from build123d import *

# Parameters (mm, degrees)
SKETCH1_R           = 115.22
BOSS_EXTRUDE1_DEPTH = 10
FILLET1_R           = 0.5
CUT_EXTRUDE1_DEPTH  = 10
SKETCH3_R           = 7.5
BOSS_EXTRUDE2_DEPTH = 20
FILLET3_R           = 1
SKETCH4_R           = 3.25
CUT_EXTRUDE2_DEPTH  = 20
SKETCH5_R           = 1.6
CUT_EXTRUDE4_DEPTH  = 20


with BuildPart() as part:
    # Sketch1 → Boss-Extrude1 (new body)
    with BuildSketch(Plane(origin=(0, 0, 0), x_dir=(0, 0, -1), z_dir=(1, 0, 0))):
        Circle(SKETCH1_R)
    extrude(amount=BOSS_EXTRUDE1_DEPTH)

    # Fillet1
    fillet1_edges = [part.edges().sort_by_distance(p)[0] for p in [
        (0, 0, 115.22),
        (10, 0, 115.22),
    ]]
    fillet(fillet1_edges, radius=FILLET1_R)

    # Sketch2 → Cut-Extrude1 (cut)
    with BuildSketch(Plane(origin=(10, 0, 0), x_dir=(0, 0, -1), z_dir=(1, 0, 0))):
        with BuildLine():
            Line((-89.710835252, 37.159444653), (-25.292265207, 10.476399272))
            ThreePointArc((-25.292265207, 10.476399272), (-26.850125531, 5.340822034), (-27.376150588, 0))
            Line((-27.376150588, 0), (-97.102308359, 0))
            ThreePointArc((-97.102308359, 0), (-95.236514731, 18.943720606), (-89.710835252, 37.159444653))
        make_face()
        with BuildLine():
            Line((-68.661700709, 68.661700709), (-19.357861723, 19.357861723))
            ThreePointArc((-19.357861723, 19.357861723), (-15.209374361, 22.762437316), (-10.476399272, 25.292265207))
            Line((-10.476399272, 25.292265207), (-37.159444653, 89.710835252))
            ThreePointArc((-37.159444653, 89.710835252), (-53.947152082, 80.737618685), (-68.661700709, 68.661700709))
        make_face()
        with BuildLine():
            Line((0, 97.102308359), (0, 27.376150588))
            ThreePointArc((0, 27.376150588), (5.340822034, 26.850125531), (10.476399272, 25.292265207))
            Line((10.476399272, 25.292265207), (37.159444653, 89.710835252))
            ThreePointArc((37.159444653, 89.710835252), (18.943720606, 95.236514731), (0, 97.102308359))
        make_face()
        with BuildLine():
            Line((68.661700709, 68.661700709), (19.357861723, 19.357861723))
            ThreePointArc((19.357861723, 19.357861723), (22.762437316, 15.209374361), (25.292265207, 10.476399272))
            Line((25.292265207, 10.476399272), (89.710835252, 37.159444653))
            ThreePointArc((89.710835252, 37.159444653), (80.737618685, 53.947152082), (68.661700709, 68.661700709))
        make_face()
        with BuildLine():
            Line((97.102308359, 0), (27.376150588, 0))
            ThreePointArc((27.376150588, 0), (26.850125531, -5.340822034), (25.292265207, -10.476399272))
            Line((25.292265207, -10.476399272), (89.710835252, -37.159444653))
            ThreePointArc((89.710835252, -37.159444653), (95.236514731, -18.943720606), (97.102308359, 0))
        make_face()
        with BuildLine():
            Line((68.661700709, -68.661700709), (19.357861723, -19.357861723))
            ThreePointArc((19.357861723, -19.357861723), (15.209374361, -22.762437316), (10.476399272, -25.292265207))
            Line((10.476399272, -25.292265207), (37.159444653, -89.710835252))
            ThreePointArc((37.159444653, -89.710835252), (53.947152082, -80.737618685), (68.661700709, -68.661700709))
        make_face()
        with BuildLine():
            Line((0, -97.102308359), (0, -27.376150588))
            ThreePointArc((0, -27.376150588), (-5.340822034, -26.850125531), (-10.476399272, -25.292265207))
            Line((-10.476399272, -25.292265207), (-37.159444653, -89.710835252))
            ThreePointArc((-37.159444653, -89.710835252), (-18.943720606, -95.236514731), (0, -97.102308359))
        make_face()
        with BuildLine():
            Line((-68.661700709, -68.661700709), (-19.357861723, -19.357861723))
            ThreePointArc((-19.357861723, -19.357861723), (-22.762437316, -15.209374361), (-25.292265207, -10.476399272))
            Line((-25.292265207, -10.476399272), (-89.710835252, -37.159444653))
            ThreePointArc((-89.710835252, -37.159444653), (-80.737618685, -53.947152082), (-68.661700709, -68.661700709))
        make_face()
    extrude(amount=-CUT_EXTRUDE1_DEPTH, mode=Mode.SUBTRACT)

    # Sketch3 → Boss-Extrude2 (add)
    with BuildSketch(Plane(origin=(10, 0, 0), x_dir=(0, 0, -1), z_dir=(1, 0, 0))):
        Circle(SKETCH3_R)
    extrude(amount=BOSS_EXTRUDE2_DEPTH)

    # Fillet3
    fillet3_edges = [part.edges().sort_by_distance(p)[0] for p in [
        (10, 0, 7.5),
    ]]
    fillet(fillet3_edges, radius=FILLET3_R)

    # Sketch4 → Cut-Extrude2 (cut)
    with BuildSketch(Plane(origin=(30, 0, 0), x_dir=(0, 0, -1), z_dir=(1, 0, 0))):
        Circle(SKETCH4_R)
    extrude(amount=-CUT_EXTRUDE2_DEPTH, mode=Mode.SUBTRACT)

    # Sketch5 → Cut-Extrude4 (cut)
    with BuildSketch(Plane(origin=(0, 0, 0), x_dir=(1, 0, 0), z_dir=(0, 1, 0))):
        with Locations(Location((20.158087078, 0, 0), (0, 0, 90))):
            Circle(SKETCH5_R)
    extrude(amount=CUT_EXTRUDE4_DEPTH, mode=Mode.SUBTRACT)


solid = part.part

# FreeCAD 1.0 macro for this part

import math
import FreeCAD as App
import Part
import Sketcher

V = App.Vector
Q = App.Units.Quantity


def edges_at(feature, points):
    """Names of the edges that pass closest to the given points."""
    edges = feature.Shape.Edges
    near = lambda p: min(range(len(edges)), key=lambda i: edges[i].distToShape(Part.Vertex(*p))[0])
    return sorted({f"Edge{near(p) + 1}" for p in points})

doc = App.newDocument("Part")
params = doc.addObject("Spreadsheet::Sheet", "Params")
for row, (alias, value) in enumerate([
    ("sketch1_diameter", "230.44 mm"),
    ("pad1_length", "10 mm"),
    ("fillet_radius", "0.5 mm"),
    ("pocket1_length", "10 mm"),
    ("sketch3_diameter", "15 mm"),
    ("pad2_length", "20 mm"),
    ("fillet2_radius", "1 mm"),
    ("sketch4_diameter", "6.5 mm"),
    ("pocket2_length", "20 mm"),
    ("sketch5_diameter", "3.2 mm"),
    ("pocket3_length", "20 mm"),
], start=1):
    params.set(f"A{row}", alias)
    params.set(f"B{row}", "=" + value)
    params.setAlias(f"B{row}", alias)

body = doc.addObject("PartDesign::Body", "Body")

sketch1 = body.newObject("Sketcher::SketchObject", "Sketch")
sketch1.AttachmentSupport = (doc.getObject("YZ_Plane"), [""])
sketch1.MapMode = "FlatFace"
sketch1.addGeometry(Part.Circle(V(0, 0, 0), V(0, 0, 1), 115), False)
sketch1.addConstraint(Sketcher.Constraint("Coincident", 0, 3, -1, 1))
sketch1.addConstraint(Sketcher.Constraint("Diameter", 0, 230.44))
sketch1.setExpression("Constraints[1]", "Params.sketch1_diameter")
pad1 = body.newObject("PartDesign::Pad", "Pad")
pad1.Profile = sketch1
pad1.setExpression("Length", "Params.pad1_length")
doc.recompute()

fillet = body.newObject("PartDesign::Fillet", "Fillet")
fillet.Base = (pad1, edges_at(pad1, [(0, 0, 115.22), (10, 0, 115.22)]))
fillet.setExpression("Radius", "Params.fillet_radius")

sketch2 = body.newObject("Sketcher::SketchObject", "Sketch001")
sketch2.AttachmentSupport = (doc.getObject("YZ_Plane"), [""])
sketch2.MapMode = "FlatFace"
sketch2.AttachmentOffset = App.Placement(V(0, 0, 10), App.Rotation())
sketch2.addGeometry(Part.LineSegment(V(10, 25, 0), V(37, 90, 0)), False)
sketch2.addGeometry(Part.ArcOfCircle(Part.Circle(V(0, 0, 0), V(0, 0, 1), 97), math.radians(68), math.radians(90)), False)
sketch2.addGeometry(Part.LineSegment(V(0, 97, 0), V(0, 27, 0)), False)
sketch2.addGeometry(Part.ArcOfCircle(Part.Circle(V(0, 0, 0), V(0, 0, 1), 27), math.radians(67), math.radians(90)), False)
sketch2.addGeometry(Part.LineSegment(V(69, 69, 0), V(19, 19, 0)), False)
sketch2.addGeometry(Part.ArcOfCircle(Part.Circle(V(0, 0, 0), V(0, 0, 1), 27), math.radians(22), math.radians(45)), False)
sketch2.addGeometry(Part.LineSegment(V(25, 10, 0), V(90, 37, 0)), False)
sketch2.addGeometry(Part.ArcOfCircle(Part.Circle(V(0, 0, 0), V(0, 0, 1), 97), math.radians(22), math.radians(45)), False)
sketch2.addGeometry(Part.LineSegment(V(97, 0, 0), V(27, 0, 0)), False)
sketch2.addGeometry(Part.ArcOfCircle(Part.Circle(V(0, 0, 0), V(0, 0, 1), 27), math.radians(-23), math.radians(0)), False)
sketch2.addGeometry(Part.LineSegment(V(25, -10, 0), V(90, -37, 0)), False)
sketch2.addGeometry(Part.ArcOfCircle(Part.Circle(V(0, 0, 0), V(0, 0, 1), 97), math.radians(-22), math.radians(0)), False)
sketch2.addGeometry(Part.LineSegment(V(69, -69, 0), V(19, -19, 0)), False)
sketch2.addGeometry(Part.ArcOfCircle(Part.Circle(V(0, 0, 0), V(0, 0, 1), 27), math.radians(-68), math.radians(-45)), False)
sketch2.addGeometry(Part.LineSegment(V(10, -25, 0), V(37, -90, 0)), False)
sketch2.addGeometry(Part.ArcOfCircle(Part.Circle(V(0, 0, 0), V(0, 0, 1), 97), math.radians(-68), math.radians(-45)), False)
sketch2.addGeometry(Part.LineSegment(V(0, -97, 0), V(0, -27, 0)), False)
sketch2.addGeometry(Part.ArcOfCircle(Part.Circle(V(0, 0, 0), V(0, 0, 1), 27), math.radians(-113), math.radians(-90)), False)
sketch2.addGeometry(Part.LineSegment(V(-10, -25, 0), V(-37, -90, 0)), False)
sketch2.addGeometry(Part.ArcOfCircle(Part.Circle(V(0, 0, 0), V(0, 0, 1), 97), math.radians(-112), math.radians(-90)), False)
sketch2.addGeometry(Part.LineSegment(V(-69, -69, 0), V(-19, -19, 0)), False)
sketch2.addGeometry(Part.ArcOfCircle(Part.Circle(V(0, 0, 0), V(0, 0, 1), 27), math.radians(-158), math.radians(-135)), False)
sketch2.addGeometry(Part.LineSegment(V(-25, -10, 0), V(-90, -37, 0)), False)
sketch2.addGeometry(Part.ArcOfCircle(Part.Circle(V(0, 0, 0), V(0, 0, 1), 97), math.radians(-158), math.radians(-135)), False)
sketch2.addGeometry(Part.LineSegment(V(-97, 0, 0), V(-27, 0, 0)), False)
sketch2.addGeometry(Part.ArcOfCircle(Part.Circle(V(0, 0, 0), V(0, 0, 1), 27), math.radians(157), math.radians(180)), False)
sketch2.addGeometry(Part.LineSegment(V(-25, 10, 0), V(-90, 37, 0)), False)
sketch2.addGeometry(Part.ArcOfCircle(Part.Circle(V(0, 0, 0), V(0, 0, 1), 97), math.radians(158), math.radians(180)), False)
sketch2.addGeometry(Part.LineSegment(V(-69, 69, 0), V(-19, 19, 0)), False)
sketch2.addGeometry(Part.ArcOfCircle(Part.Circle(V(0, 0, 0), V(0, 0, 1), 27), math.radians(112), math.radians(135)), False)
sketch2.addGeometry(Part.LineSegment(V(-10, 25, 0), V(-37, 90, 0)), False)
sketch2.addGeometry(Part.ArcOfCircle(Part.Circle(V(0, 0, 0), V(0, 0, 1), 97), math.radians(112), math.radians(135)), False)
sketch2.addConstraint(Sketcher.Constraint("Coincident", 0, 2, 1, 1))
sketch2.addConstraint(Sketcher.Constraint("Coincident", 1, 2, 2, 1))
sketch2.addConstraint(Sketcher.Constraint("Coincident", 2, 2, 3, 2))
sketch2.addConstraint(Sketcher.Constraint("Coincident", 3, 1, 0, 1))
sketch2.addConstraint(Sketcher.Constraint("Coincident", 4, 2, 5, 2))
sketch2.addConstraint(Sketcher.Constraint("Coincident", 5, 1, 6, 1))
sketch2.addConstraint(Sketcher.Constraint("Coincident", 6, 2, 7, 1))
sketch2.addConstraint(Sketcher.Constraint("Coincident", 7, 2, 4, 1))
sketch2.addConstraint(Sketcher.Constraint("Coincident", 8, 2, 9, 2))
sketch2.addConstraint(Sketcher.Constraint("Coincident", 9, 1, 10, 1))
sketch2.addConstraint(Sketcher.Constraint("Coincident", 10, 2, 11, 1))
sketch2.addConstraint(Sketcher.Constraint("Coincident", 11, 2, 8, 1))
sketch2.addConstraint(Sketcher.Constraint("Coincident", 12, 2, 13, 2))
sketch2.addConstraint(Sketcher.Constraint("Coincident", 13, 1, 14, 1))
sketch2.addConstraint(Sketcher.Constraint("Coincident", 14, 2, 15, 1))
sketch2.addConstraint(Sketcher.Constraint("Coincident", 15, 2, 12, 1))
sketch2.addConstraint(Sketcher.Constraint("Coincident", 16, 2, 17, 2))
sketch2.addConstraint(Sketcher.Constraint("Coincident", 17, 1, 18, 1))
sketch2.addConstraint(Sketcher.Constraint("Coincident", 18, 2, 19, 1))
sketch2.addConstraint(Sketcher.Constraint("Coincident", 19, 2, 16, 1))
sketch2.addConstraint(Sketcher.Constraint("Coincident", 20, 2, 21, 2))
sketch2.addConstraint(Sketcher.Constraint("Coincident", 21, 1, 22, 1))
sketch2.addConstraint(Sketcher.Constraint("Coincident", 22, 2, 23, 1))
sketch2.addConstraint(Sketcher.Constraint("Coincident", 23, 2, 20, 1))
sketch2.addConstraint(Sketcher.Constraint("Coincident", 24, 2, 25, 2))
sketch2.addConstraint(Sketcher.Constraint("Coincident", 25, 1, 26, 1))
sketch2.addConstraint(Sketcher.Constraint("Coincident", 26, 2, 27, 1))
sketch2.addConstraint(Sketcher.Constraint("Coincident", 27, 2, 24, 1))
sketch2.addConstraint(Sketcher.Constraint("Coincident", 28, 2, 29, 2))
sketch2.addConstraint(Sketcher.Constraint("Coincident", 29, 1, 30, 1))
sketch2.addConstraint(Sketcher.Constraint("Coincident", 30, 2, 31, 1))
sketch2.addConstraint(Sketcher.Constraint("Coincident", 31, 2, 28, 1))
sketch2.addConstraint(Sketcher.Constraint("Vertical", 2))
sketch2.addConstraint(Sketcher.Constraint("Horizontal", 8))
sketch2.addConstraint(Sketcher.Constraint("Vertical", 16))
sketch2.addConstraint(Sketcher.Constraint("Horizontal", 24))
sketch2.addConstraint(Sketcher.Constraint("Coincident", 1, 3, -1, 1))
sketch2.addConstraint(Sketcher.Constraint("Coincident", 3, 3, -1, 1))
sketch2.addConstraint(Sketcher.Constraint("Coincident", 5, 3, -1, 1))
sketch2.addConstraint(Sketcher.Constraint("Coincident", 7, 3, -1, 1))
sketch2.addConstraint(Sketcher.Constraint("Coincident", 9, 3, -1, 1))
sketch2.addConstraint(Sketcher.Constraint("Coincident", 11, 3, -1, 1))
sketch2.addConstraint(Sketcher.Constraint("Coincident", 13, 3, -1, 1))
sketch2.addConstraint(Sketcher.Constraint("Coincident", 15, 3, -1, 1))
sketch2.addConstraint(Sketcher.Constraint("Coincident", 17, 3, -1, 1))
sketch2.addConstraint(Sketcher.Constraint("Coincident", 19, 3, -1, 1))
sketch2.addConstraint(Sketcher.Constraint("Coincident", 21, 3, -1, 1))
sketch2.addConstraint(Sketcher.Constraint("Coincident", 23, 3, -1, 1))
sketch2.addConstraint(Sketcher.Constraint("Coincident", 25, 3, -1, 1))
sketch2.addConstraint(Sketcher.Constraint("Coincident", 27, 3, -1, 1))
sketch2.addConstraint(Sketcher.Constraint("Coincident", 29, 3, -1, 1))
sketch2.addConstraint(Sketcher.Constraint("Coincident", 31, 3, -1, 1))
sketch2.addConstraint(Sketcher.Constraint("Equal", 3, 5))
sketch2.addConstraint(Sketcher.Constraint("Equal", 1, 7))
sketch2.addConstraint(Sketcher.Constraint("Equal", 5, 9))
sketch2.addConstraint(Sketcher.Constraint("Equal", 7, 11))
sketch2.addConstraint(Sketcher.Constraint("Equal", 9, 13))
sketch2.addConstraint(Sketcher.Constraint("Equal", 11, 15))
sketch2.addConstraint(Sketcher.Constraint("Equal", 13, 17))
sketch2.addConstraint(Sketcher.Constraint("Equal", 15, 19))
sketch2.addConstraint(Sketcher.Constraint("Equal", 17, 21))
sketch2.addConstraint(Sketcher.Constraint("Equal", 19, 23))
sketch2.addConstraint(Sketcher.Constraint("Equal", 21, 25))
sketch2.addConstraint(Sketcher.Constraint("Equal", 23, 27))
sketch2.addConstraint(Sketcher.Constraint("Equal", 25, 29))
sketch2.addConstraint(Sketcher.Constraint("Equal", 27, 31))
sketch2.addConstraint(Sketcher.Constraint("PointOnObject", 1, 2, -2))
sketch2.addConstraint(Sketcher.Constraint("PointOnObject", 8, 2, -1))
sketch2.addConstraint(Sketcher.Constraint("PointOnObject", 16, 2, -2))
sketch2.addConstraint(Sketcher.Constraint("PointOnObject", 24, 2, -1))
sketch2.addConstraint(Sketcher.Constraint("Perpendicular", 0, 10))
sketch2.addConstraint(Sketcher.Constraint("Perpendicular", 4, 12))
sketch2.addConstraint(Sketcher.Constraint("Perpendicular", 6, 14))
sketch2.addConstraint(Sketcher.Constraint("Perpendicular", 10, 18))
sketch2.addConstraint(Sketcher.Constraint("Perpendicular", 12, 20))
sketch2.addConstraint(Sketcher.Constraint("Perpendicular", 14, 22))
sketch2.addConstraint(Sketcher.Constraint("Perpendicular", 18, 26))
sketch2.addConstraint(Sketcher.Constraint("Perpendicular", 20, 28))
sketch2.addConstraint(Sketcher.Constraint("Perpendicular", 22, 30))
sketch2.addConstraint(Sketcher.Constraint("Horizontal", 13, 1, 17, 1))
sketch2.addConstraint(Sketcher.Constraint("Horizontal", 14, 2, 18, 2))
sketch2.addConstraint(Sketcher.Constraint("Horizontal", 12, 2, 20, 2))
sketch2.addConstraint(Sketcher.Constraint("Horizontal", 9, 1, 21, 1))
sketch2.addConstraint(Sketcher.Constraint("Horizontal", 15, 2, 23, 2))
sketch2.addConstraint(Sketcher.Constraint("Horizontal", 5, 1, 25, 1))
sketch2.addConstraint(Sketcher.Constraint("Horizontal", 4, 2, 28, 2))
sketch2.addConstraint(Sketcher.Constraint("Horizontal", 3, 1, 29, 1))
sketch2.addConstraint(Sketcher.Constraint("Vertical", 5, 1, 9, 1))
sketch2.addConstraint(Sketcher.Constraint("Vertical", 4, 2, 12, 2))
sketch2.addConstraint(Sketcher.Constraint("Vertical", 3, 1, 13, 1))
sketch2.addConstraint(Sketcher.Constraint("Angle", 0, Q("67.5 deg")))
sketch2.addConstraint(Sketcher.Constraint("Radius", 1, 97.102308))
sketch2.addConstraint(Sketcher.Constraint("Radius", 3, 27.376151))
sketch2.addConstraint(Sketcher.Constraint("DistanceX", -1, 1, 3, 1, 10.476399))
sketch2.addConstraint(Sketcher.Constraint("DistanceY", -1, 1, 5, 1, 10.476399))
sketch2.addConstraint(Sketcher.Constraint("DistanceX", -1, 1, 7, 2, 68.661701))
pocket1 = body.newObject("PartDesign::Pocket", "Pocket")
pocket1.Profile = sketch2
pocket1.setExpression("Length", "Params.pocket1_length")

sketch3 = body.newObject("Sketcher::SketchObject", "Sketch002")
sketch3.AttachmentSupport = (doc.getObject("YZ_Plane"), [""])
sketch3.MapMode = "FlatFace"
sketch3.AttachmentOffset = App.Placement(V(0, 0, 10), App.Rotation())
sketch3.addGeometry(Part.Circle(V(0, 0, 0), V(0, 0, 1), 8), False)
sketch3.addConstraint(Sketcher.Constraint("Coincident", 0, 3, -1, 1))
sketch3.addConstraint(Sketcher.Constraint("Diameter", 0, 15.0))
sketch3.setExpression("Constraints[1]", "Params.sketch3_diameter")
pad2 = body.newObject("PartDesign::Pad", "Pad001")
pad2.Profile = sketch3
pad2.setExpression("Length", "Params.pad2_length")
doc.recompute()

fillet2 = body.newObject("PartDesign::Fillet", "Fillet001")
fillet2.Base = (pad2, edges_at(pad2, [(10, 0, 7.5)]))
fillet2.setExpression("Radius", "Params.fillet2_radius")

sketch4 = body.newObject("Sketcher::SketchObject", "Sketch003")
sketch4.AttachmentSupport = (doc.getObject("YZ_Plane"), [""])
sketch4.MapMode = "FlatFace"
sketch4.AttachmentOffset = App.Placement(V(0, 0, 30), App.Rotation())
sketch4.addGeometry(Part.Circle(V(0, 0, 0), V(0, 0, 1), 3.2), False)
sketch4.addConstraint(Sketcher.Constraint("Coincident", 0, 3, -1, 1))
sketch4.addConstraint(Sketcher.Constraint("Diameter", 0, 6.5))
sketch4.setExpression("Constraints[1]", "Params.sketch4_diameter")
pocket2 = body.newObject("PartDesign::Pocket", "Pocket001")
pocket2.Profile = sketch4
pocket2.setExpression("Length", "Params.pocket2_length")

sketch5 = body.newObject("Sketcher::SketchObject", "Sketch004")
sketch5.AttachmentSupport = (doc.getObject("XZ_Plane"), [""])
sketch5.MapMode = "FlatFace"
sketch5.addGeometry(Part.Circle(V(20.2, 0, 0), V(0, 0, 1), 1.6), False)
sketch5.addConstraint(Sketcher.Constraint("PointOnObject", 0, 3, -1))
sketch5.addConstraint(Sketcher.Constraint("Diameter", 0, 3.2))
sketch5.addConstraint(Sketcher.Constraint("DistanceX", -1, 1, 0, 3, 20.158087))
sketch5.setExpression("Constraints[1]", "Params.sketch5_diameter")
pocket3 = body.newObject("PartDesign::Pocket", "Pocket002")
pocket3.Profile = sketch5
pocket3.setExpression("Length", "Params.pocket3_length")

doc.recompute()
